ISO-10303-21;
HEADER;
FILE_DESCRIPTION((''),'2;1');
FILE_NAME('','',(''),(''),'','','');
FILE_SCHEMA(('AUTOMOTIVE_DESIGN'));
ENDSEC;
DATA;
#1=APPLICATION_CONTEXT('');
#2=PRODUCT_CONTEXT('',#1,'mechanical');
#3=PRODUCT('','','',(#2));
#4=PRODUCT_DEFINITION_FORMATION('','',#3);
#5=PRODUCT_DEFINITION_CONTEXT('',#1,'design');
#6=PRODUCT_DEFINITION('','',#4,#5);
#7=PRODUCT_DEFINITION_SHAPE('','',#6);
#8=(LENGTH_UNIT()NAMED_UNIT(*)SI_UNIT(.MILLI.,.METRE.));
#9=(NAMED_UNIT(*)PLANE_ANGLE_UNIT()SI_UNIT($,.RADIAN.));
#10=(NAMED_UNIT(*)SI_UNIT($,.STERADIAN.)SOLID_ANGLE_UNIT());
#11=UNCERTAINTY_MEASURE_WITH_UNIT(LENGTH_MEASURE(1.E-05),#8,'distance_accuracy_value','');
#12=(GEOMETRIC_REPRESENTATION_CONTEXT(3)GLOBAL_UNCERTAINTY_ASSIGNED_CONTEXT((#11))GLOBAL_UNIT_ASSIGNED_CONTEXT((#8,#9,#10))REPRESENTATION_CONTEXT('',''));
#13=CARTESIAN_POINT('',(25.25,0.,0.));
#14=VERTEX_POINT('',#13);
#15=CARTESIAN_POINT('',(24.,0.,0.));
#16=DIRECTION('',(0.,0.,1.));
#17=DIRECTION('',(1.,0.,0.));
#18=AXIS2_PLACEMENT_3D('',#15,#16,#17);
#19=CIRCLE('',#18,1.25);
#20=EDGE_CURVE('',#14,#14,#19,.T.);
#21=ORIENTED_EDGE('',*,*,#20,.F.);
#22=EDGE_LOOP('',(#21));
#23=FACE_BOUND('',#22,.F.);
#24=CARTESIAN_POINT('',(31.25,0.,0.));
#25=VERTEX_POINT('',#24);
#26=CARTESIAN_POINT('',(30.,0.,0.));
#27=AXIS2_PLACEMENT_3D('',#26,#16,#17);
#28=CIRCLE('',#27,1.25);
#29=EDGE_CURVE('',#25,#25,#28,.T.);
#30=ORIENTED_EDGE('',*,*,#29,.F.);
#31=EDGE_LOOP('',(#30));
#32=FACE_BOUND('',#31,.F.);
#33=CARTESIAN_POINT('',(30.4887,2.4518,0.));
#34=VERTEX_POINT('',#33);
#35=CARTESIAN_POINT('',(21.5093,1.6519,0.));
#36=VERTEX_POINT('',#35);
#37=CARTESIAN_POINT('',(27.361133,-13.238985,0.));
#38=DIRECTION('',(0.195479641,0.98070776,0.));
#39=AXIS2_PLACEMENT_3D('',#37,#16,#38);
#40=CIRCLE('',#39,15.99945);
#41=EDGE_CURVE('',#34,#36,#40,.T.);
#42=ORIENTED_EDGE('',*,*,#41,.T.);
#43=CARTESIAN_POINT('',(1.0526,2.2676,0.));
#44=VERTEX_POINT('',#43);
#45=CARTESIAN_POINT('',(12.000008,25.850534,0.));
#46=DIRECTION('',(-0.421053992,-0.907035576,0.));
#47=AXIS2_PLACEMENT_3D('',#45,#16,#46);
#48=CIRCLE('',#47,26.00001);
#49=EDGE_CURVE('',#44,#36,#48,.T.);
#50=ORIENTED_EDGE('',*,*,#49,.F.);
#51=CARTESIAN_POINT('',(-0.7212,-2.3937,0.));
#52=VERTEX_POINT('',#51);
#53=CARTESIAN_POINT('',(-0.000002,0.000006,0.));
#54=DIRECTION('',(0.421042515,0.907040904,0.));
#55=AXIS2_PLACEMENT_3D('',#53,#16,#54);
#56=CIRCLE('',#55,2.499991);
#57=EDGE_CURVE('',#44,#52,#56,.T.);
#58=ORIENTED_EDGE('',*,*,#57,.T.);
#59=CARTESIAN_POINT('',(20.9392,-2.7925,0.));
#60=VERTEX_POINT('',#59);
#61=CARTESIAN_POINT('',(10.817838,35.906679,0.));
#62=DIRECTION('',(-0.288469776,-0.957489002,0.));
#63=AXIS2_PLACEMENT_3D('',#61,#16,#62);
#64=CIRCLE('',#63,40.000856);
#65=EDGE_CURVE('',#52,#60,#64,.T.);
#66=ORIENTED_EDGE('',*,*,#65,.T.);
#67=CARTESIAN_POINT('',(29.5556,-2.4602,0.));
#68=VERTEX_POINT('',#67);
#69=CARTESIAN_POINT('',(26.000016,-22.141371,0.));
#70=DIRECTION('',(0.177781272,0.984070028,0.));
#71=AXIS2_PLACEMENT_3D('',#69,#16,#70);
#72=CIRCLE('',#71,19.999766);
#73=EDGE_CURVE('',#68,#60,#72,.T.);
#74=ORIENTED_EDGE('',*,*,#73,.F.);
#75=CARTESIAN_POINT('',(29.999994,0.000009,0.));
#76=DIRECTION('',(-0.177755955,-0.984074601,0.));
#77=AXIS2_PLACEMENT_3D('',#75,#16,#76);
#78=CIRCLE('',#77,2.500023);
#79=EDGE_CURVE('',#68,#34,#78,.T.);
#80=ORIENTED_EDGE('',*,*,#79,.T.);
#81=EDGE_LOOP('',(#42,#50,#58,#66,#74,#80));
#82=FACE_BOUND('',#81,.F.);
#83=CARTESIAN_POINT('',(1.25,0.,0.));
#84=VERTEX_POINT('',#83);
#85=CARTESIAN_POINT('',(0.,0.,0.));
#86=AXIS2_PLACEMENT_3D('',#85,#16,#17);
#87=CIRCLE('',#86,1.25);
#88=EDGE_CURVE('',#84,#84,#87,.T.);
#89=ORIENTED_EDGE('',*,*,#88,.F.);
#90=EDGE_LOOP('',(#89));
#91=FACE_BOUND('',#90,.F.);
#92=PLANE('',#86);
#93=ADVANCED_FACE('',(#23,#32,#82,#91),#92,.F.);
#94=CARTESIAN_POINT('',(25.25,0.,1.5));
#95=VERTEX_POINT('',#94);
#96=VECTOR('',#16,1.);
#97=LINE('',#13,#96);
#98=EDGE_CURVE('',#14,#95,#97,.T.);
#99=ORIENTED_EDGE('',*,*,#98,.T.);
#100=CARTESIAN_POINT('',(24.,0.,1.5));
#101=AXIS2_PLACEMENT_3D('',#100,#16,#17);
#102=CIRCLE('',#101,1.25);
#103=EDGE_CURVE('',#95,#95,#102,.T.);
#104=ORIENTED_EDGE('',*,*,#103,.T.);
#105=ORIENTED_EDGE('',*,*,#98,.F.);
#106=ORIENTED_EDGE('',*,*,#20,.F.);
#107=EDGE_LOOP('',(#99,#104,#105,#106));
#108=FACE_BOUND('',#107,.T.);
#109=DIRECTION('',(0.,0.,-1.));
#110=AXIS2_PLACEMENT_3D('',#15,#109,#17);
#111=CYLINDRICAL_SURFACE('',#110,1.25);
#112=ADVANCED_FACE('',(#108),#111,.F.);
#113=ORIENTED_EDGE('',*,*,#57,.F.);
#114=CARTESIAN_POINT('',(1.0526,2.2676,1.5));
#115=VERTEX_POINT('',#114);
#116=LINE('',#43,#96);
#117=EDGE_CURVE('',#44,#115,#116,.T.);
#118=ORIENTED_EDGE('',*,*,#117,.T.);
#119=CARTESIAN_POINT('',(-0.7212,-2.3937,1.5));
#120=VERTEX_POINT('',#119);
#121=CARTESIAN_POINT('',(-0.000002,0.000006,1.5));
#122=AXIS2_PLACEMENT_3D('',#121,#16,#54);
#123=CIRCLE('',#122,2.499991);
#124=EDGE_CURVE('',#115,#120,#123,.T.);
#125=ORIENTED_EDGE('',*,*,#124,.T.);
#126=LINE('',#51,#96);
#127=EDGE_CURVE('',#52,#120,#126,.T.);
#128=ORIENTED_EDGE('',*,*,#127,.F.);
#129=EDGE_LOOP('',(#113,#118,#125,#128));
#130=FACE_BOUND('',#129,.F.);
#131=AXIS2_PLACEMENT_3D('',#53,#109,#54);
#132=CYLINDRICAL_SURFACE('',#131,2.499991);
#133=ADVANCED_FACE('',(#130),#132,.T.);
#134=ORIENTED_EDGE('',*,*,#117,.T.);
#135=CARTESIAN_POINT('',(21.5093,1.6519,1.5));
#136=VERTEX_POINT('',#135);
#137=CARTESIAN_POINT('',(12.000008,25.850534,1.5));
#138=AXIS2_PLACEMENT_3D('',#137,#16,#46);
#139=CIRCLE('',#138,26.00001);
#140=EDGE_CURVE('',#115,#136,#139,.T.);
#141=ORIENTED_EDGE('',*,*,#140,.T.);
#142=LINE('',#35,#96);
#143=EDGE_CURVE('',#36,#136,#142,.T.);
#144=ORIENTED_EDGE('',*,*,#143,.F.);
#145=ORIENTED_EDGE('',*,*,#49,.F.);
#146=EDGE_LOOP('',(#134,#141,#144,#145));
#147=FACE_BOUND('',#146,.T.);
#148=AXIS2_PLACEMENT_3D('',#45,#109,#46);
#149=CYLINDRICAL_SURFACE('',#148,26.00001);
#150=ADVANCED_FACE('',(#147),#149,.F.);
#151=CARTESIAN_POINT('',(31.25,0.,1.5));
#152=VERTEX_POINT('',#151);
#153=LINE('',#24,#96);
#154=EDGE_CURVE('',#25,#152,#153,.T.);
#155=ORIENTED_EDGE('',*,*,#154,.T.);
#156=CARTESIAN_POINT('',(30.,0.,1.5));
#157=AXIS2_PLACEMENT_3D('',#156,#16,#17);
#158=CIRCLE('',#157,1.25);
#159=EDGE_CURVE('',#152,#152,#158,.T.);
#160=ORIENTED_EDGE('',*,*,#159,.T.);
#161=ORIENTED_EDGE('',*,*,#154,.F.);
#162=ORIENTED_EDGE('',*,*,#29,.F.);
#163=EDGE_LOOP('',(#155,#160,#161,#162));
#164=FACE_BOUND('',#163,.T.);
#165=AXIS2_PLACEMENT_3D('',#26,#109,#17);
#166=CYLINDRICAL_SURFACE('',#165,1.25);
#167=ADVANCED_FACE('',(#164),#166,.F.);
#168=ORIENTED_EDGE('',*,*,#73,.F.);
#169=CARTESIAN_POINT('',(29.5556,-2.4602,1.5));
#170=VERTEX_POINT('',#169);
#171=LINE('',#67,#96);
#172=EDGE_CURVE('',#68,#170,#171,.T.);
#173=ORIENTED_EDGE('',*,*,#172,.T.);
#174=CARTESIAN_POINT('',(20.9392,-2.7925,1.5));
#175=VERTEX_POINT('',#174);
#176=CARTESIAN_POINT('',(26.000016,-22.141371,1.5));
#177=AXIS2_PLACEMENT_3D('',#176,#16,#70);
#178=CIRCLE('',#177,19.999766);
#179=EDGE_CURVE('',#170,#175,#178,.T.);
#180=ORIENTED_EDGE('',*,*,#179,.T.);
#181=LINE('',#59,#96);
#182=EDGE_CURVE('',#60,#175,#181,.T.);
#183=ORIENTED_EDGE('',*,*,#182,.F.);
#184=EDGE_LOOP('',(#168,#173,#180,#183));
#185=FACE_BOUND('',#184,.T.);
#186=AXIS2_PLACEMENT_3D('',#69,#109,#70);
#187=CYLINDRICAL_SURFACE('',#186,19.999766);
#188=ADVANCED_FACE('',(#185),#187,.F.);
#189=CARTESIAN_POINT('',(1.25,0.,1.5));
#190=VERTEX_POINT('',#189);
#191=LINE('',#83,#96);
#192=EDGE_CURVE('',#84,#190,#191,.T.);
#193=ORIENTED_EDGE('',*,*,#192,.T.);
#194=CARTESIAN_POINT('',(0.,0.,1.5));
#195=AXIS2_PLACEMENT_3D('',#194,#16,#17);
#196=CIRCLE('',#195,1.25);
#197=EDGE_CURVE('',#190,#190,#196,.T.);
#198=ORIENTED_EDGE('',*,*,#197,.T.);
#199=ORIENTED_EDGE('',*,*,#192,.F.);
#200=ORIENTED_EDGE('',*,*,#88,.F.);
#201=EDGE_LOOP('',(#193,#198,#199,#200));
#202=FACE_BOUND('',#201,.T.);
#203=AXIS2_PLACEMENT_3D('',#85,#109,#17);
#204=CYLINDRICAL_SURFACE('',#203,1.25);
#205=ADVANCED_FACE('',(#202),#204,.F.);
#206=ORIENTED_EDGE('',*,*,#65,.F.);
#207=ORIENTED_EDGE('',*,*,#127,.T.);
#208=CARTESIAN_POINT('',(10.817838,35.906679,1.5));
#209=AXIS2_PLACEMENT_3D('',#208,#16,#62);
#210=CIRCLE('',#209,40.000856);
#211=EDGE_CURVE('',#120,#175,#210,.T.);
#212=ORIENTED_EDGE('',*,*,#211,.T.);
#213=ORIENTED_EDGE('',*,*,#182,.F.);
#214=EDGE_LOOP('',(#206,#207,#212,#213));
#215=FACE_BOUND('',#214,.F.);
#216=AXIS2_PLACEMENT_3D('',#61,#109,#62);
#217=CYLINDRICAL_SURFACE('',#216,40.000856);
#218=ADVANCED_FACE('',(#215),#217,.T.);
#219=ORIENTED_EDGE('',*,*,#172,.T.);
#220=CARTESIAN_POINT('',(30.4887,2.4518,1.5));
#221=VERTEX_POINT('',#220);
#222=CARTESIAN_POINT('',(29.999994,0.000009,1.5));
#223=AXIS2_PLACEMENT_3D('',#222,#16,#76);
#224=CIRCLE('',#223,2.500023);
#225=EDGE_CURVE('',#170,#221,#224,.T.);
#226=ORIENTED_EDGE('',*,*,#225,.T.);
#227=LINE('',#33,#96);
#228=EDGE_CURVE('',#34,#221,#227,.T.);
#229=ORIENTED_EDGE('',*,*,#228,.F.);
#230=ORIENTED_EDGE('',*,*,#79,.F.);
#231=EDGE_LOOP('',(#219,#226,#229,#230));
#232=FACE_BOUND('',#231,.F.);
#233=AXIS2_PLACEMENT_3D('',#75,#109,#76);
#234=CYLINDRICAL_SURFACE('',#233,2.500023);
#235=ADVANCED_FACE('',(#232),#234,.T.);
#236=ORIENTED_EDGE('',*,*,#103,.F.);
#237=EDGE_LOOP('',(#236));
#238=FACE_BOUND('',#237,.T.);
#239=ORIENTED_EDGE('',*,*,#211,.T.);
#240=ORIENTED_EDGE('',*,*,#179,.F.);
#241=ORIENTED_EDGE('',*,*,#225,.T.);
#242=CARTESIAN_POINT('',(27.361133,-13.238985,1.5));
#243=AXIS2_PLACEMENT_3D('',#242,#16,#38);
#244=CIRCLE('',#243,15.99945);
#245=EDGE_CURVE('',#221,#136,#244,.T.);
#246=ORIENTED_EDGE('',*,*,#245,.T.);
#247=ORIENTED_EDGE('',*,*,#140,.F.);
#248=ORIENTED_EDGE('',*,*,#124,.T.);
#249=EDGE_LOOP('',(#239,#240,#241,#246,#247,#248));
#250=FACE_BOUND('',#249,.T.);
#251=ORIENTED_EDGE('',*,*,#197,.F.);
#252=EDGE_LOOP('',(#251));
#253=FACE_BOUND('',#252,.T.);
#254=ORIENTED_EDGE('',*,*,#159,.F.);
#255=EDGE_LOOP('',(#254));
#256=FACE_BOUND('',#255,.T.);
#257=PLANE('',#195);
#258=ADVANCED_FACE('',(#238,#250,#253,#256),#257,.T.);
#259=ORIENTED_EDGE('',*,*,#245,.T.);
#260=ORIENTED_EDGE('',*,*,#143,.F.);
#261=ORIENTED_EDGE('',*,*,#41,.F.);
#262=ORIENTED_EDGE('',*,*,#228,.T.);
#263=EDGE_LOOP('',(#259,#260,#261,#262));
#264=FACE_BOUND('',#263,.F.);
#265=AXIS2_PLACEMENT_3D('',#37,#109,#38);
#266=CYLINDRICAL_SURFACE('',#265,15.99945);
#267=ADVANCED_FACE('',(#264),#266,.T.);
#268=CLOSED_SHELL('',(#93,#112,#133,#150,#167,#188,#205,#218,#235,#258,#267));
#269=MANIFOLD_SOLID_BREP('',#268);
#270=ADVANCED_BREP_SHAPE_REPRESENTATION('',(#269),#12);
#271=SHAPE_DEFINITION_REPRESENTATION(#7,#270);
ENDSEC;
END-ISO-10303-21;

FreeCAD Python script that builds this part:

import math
import FreeCAD as App
import Part
import Sketcher
from FreeCAD import Vector

doc = App.newDocument("Part")
body = doc.addObject("PartDesign::Body", "Body")

sketch1 = body.newObject("Sketcher::SketchObject", "Sketch")
sketch1.AttachmentSupport = (doc.getObject("XY_Plane"), [""])
sketch1.MapMode = "FlatFace"
sketch1.addGeometry([
    Part.ArcOfCircle(Part.Circle(Vector(12, 25.9, 0), Vector(0, 0, 1), 26), math.radians(-115), math.radians(-69)),
    Part.ArcOfCircle(Part.Circle(Vector(0, 0, 0), Vector(0, 0, 1), 2.5), math.radians(65), math.radians(253)),
    Part.ArcOfCircle(Part.Circle(Vector(10.8, 35.9, 0), Vector(0, 0, 1), 40), math.radians(-107), math.radians(-75)),
    Part.ArcOfCircle(Part.Circle(Vector(26, -22.1, 0), Vector(0, 0, 1), 20), math.radians(80), math.radians(105)),
    Part.ArcOfCircle(Part.Circle(Vector(30, 0, 0), Vector(0, 0, 1), 2.5), math.radians(-100), math.radians(79)),
    Part.ArcOfCircle(Part.Circle(Vector(27.4, -13.2, 0), Vector(0, 0, 1), 16), math.radians(79), math.radians(111)),
    Part.Circle(Vector(0, 0, 0), Vector(0, 0, 1), 1.2),
    Part.Circle(Vector(24, 0, 0), Vector(0, 0, 1), 1.2),
    Part.Circle(Vector(30, 0, 0), Vector(0, 0, 1), 1.2),
], False)
sketch1.addConstraint([
    Sketcher.Constraint("Tangent", 0, 1, 1, 1),
    Sketcher.Constraint("Tangent", 1, 2, 2, 1),
    Sketcher.Constraint("Tangent", 2, 2, 3, 2),
    Sketcher.Constraint("Tangent", 3, 1, 4, 1),
    Sketcher.Constraint("Tangent", 4, 2, 5, 1),
    Sketcher.Constraint("Tangent", 5, 2, 0, 2),
    Sketcher.Constraint("Coincident", 1, 3, -1, 1),
    Sketcher.Constraint("Coincident", 6, 3, -1, 1),
    Sketcher.Constraint("Coincident", 8, 3, 4, 3),
    Sketcher.Constraint("Equal", 1, 4),
    Sketcher.Constraint("Equal", 6, 7),
    Sketcher.Constraint("Equal", 7, 8),
    Sketcher.Constraint("PointOnObject", 4, 3, -1),
    Sketcher.Constraint("PointOnObject", 7, 3, -1),
    Sketcher.Constraint("Radius", 0, 26.0),
    Sketcher.Constraint("Radius", 2, 40.0),
    Sketcher.Constraint("Radius", 3, 20.0),
    Sketcher.Constraint("Radius", 5, 16.0),
    Sketcher.Constraint("Diameter", 6, 2.5),
    Sketcher.Constraint("Radius", 1, 2.5),
    Sketcher.Constraint("DistanceX", -1, 1, 0, 3, 12.0),
    Sketcher.Constraint("DistanceX", -1, 1, 3, 3, 26.0),
    Sketcher.Constraint("DistanceX", -1, 1, 4, 3, 30.0),
    Sketcher.Constraint("DistanceX", -1, 1, 7, 3, 24.0),
])
pad1 = body.newObject("PartDesign::Pad", "Pad")
pad1.Profile = sketch1
pad1.Length = 1.5

doc.recompute()
